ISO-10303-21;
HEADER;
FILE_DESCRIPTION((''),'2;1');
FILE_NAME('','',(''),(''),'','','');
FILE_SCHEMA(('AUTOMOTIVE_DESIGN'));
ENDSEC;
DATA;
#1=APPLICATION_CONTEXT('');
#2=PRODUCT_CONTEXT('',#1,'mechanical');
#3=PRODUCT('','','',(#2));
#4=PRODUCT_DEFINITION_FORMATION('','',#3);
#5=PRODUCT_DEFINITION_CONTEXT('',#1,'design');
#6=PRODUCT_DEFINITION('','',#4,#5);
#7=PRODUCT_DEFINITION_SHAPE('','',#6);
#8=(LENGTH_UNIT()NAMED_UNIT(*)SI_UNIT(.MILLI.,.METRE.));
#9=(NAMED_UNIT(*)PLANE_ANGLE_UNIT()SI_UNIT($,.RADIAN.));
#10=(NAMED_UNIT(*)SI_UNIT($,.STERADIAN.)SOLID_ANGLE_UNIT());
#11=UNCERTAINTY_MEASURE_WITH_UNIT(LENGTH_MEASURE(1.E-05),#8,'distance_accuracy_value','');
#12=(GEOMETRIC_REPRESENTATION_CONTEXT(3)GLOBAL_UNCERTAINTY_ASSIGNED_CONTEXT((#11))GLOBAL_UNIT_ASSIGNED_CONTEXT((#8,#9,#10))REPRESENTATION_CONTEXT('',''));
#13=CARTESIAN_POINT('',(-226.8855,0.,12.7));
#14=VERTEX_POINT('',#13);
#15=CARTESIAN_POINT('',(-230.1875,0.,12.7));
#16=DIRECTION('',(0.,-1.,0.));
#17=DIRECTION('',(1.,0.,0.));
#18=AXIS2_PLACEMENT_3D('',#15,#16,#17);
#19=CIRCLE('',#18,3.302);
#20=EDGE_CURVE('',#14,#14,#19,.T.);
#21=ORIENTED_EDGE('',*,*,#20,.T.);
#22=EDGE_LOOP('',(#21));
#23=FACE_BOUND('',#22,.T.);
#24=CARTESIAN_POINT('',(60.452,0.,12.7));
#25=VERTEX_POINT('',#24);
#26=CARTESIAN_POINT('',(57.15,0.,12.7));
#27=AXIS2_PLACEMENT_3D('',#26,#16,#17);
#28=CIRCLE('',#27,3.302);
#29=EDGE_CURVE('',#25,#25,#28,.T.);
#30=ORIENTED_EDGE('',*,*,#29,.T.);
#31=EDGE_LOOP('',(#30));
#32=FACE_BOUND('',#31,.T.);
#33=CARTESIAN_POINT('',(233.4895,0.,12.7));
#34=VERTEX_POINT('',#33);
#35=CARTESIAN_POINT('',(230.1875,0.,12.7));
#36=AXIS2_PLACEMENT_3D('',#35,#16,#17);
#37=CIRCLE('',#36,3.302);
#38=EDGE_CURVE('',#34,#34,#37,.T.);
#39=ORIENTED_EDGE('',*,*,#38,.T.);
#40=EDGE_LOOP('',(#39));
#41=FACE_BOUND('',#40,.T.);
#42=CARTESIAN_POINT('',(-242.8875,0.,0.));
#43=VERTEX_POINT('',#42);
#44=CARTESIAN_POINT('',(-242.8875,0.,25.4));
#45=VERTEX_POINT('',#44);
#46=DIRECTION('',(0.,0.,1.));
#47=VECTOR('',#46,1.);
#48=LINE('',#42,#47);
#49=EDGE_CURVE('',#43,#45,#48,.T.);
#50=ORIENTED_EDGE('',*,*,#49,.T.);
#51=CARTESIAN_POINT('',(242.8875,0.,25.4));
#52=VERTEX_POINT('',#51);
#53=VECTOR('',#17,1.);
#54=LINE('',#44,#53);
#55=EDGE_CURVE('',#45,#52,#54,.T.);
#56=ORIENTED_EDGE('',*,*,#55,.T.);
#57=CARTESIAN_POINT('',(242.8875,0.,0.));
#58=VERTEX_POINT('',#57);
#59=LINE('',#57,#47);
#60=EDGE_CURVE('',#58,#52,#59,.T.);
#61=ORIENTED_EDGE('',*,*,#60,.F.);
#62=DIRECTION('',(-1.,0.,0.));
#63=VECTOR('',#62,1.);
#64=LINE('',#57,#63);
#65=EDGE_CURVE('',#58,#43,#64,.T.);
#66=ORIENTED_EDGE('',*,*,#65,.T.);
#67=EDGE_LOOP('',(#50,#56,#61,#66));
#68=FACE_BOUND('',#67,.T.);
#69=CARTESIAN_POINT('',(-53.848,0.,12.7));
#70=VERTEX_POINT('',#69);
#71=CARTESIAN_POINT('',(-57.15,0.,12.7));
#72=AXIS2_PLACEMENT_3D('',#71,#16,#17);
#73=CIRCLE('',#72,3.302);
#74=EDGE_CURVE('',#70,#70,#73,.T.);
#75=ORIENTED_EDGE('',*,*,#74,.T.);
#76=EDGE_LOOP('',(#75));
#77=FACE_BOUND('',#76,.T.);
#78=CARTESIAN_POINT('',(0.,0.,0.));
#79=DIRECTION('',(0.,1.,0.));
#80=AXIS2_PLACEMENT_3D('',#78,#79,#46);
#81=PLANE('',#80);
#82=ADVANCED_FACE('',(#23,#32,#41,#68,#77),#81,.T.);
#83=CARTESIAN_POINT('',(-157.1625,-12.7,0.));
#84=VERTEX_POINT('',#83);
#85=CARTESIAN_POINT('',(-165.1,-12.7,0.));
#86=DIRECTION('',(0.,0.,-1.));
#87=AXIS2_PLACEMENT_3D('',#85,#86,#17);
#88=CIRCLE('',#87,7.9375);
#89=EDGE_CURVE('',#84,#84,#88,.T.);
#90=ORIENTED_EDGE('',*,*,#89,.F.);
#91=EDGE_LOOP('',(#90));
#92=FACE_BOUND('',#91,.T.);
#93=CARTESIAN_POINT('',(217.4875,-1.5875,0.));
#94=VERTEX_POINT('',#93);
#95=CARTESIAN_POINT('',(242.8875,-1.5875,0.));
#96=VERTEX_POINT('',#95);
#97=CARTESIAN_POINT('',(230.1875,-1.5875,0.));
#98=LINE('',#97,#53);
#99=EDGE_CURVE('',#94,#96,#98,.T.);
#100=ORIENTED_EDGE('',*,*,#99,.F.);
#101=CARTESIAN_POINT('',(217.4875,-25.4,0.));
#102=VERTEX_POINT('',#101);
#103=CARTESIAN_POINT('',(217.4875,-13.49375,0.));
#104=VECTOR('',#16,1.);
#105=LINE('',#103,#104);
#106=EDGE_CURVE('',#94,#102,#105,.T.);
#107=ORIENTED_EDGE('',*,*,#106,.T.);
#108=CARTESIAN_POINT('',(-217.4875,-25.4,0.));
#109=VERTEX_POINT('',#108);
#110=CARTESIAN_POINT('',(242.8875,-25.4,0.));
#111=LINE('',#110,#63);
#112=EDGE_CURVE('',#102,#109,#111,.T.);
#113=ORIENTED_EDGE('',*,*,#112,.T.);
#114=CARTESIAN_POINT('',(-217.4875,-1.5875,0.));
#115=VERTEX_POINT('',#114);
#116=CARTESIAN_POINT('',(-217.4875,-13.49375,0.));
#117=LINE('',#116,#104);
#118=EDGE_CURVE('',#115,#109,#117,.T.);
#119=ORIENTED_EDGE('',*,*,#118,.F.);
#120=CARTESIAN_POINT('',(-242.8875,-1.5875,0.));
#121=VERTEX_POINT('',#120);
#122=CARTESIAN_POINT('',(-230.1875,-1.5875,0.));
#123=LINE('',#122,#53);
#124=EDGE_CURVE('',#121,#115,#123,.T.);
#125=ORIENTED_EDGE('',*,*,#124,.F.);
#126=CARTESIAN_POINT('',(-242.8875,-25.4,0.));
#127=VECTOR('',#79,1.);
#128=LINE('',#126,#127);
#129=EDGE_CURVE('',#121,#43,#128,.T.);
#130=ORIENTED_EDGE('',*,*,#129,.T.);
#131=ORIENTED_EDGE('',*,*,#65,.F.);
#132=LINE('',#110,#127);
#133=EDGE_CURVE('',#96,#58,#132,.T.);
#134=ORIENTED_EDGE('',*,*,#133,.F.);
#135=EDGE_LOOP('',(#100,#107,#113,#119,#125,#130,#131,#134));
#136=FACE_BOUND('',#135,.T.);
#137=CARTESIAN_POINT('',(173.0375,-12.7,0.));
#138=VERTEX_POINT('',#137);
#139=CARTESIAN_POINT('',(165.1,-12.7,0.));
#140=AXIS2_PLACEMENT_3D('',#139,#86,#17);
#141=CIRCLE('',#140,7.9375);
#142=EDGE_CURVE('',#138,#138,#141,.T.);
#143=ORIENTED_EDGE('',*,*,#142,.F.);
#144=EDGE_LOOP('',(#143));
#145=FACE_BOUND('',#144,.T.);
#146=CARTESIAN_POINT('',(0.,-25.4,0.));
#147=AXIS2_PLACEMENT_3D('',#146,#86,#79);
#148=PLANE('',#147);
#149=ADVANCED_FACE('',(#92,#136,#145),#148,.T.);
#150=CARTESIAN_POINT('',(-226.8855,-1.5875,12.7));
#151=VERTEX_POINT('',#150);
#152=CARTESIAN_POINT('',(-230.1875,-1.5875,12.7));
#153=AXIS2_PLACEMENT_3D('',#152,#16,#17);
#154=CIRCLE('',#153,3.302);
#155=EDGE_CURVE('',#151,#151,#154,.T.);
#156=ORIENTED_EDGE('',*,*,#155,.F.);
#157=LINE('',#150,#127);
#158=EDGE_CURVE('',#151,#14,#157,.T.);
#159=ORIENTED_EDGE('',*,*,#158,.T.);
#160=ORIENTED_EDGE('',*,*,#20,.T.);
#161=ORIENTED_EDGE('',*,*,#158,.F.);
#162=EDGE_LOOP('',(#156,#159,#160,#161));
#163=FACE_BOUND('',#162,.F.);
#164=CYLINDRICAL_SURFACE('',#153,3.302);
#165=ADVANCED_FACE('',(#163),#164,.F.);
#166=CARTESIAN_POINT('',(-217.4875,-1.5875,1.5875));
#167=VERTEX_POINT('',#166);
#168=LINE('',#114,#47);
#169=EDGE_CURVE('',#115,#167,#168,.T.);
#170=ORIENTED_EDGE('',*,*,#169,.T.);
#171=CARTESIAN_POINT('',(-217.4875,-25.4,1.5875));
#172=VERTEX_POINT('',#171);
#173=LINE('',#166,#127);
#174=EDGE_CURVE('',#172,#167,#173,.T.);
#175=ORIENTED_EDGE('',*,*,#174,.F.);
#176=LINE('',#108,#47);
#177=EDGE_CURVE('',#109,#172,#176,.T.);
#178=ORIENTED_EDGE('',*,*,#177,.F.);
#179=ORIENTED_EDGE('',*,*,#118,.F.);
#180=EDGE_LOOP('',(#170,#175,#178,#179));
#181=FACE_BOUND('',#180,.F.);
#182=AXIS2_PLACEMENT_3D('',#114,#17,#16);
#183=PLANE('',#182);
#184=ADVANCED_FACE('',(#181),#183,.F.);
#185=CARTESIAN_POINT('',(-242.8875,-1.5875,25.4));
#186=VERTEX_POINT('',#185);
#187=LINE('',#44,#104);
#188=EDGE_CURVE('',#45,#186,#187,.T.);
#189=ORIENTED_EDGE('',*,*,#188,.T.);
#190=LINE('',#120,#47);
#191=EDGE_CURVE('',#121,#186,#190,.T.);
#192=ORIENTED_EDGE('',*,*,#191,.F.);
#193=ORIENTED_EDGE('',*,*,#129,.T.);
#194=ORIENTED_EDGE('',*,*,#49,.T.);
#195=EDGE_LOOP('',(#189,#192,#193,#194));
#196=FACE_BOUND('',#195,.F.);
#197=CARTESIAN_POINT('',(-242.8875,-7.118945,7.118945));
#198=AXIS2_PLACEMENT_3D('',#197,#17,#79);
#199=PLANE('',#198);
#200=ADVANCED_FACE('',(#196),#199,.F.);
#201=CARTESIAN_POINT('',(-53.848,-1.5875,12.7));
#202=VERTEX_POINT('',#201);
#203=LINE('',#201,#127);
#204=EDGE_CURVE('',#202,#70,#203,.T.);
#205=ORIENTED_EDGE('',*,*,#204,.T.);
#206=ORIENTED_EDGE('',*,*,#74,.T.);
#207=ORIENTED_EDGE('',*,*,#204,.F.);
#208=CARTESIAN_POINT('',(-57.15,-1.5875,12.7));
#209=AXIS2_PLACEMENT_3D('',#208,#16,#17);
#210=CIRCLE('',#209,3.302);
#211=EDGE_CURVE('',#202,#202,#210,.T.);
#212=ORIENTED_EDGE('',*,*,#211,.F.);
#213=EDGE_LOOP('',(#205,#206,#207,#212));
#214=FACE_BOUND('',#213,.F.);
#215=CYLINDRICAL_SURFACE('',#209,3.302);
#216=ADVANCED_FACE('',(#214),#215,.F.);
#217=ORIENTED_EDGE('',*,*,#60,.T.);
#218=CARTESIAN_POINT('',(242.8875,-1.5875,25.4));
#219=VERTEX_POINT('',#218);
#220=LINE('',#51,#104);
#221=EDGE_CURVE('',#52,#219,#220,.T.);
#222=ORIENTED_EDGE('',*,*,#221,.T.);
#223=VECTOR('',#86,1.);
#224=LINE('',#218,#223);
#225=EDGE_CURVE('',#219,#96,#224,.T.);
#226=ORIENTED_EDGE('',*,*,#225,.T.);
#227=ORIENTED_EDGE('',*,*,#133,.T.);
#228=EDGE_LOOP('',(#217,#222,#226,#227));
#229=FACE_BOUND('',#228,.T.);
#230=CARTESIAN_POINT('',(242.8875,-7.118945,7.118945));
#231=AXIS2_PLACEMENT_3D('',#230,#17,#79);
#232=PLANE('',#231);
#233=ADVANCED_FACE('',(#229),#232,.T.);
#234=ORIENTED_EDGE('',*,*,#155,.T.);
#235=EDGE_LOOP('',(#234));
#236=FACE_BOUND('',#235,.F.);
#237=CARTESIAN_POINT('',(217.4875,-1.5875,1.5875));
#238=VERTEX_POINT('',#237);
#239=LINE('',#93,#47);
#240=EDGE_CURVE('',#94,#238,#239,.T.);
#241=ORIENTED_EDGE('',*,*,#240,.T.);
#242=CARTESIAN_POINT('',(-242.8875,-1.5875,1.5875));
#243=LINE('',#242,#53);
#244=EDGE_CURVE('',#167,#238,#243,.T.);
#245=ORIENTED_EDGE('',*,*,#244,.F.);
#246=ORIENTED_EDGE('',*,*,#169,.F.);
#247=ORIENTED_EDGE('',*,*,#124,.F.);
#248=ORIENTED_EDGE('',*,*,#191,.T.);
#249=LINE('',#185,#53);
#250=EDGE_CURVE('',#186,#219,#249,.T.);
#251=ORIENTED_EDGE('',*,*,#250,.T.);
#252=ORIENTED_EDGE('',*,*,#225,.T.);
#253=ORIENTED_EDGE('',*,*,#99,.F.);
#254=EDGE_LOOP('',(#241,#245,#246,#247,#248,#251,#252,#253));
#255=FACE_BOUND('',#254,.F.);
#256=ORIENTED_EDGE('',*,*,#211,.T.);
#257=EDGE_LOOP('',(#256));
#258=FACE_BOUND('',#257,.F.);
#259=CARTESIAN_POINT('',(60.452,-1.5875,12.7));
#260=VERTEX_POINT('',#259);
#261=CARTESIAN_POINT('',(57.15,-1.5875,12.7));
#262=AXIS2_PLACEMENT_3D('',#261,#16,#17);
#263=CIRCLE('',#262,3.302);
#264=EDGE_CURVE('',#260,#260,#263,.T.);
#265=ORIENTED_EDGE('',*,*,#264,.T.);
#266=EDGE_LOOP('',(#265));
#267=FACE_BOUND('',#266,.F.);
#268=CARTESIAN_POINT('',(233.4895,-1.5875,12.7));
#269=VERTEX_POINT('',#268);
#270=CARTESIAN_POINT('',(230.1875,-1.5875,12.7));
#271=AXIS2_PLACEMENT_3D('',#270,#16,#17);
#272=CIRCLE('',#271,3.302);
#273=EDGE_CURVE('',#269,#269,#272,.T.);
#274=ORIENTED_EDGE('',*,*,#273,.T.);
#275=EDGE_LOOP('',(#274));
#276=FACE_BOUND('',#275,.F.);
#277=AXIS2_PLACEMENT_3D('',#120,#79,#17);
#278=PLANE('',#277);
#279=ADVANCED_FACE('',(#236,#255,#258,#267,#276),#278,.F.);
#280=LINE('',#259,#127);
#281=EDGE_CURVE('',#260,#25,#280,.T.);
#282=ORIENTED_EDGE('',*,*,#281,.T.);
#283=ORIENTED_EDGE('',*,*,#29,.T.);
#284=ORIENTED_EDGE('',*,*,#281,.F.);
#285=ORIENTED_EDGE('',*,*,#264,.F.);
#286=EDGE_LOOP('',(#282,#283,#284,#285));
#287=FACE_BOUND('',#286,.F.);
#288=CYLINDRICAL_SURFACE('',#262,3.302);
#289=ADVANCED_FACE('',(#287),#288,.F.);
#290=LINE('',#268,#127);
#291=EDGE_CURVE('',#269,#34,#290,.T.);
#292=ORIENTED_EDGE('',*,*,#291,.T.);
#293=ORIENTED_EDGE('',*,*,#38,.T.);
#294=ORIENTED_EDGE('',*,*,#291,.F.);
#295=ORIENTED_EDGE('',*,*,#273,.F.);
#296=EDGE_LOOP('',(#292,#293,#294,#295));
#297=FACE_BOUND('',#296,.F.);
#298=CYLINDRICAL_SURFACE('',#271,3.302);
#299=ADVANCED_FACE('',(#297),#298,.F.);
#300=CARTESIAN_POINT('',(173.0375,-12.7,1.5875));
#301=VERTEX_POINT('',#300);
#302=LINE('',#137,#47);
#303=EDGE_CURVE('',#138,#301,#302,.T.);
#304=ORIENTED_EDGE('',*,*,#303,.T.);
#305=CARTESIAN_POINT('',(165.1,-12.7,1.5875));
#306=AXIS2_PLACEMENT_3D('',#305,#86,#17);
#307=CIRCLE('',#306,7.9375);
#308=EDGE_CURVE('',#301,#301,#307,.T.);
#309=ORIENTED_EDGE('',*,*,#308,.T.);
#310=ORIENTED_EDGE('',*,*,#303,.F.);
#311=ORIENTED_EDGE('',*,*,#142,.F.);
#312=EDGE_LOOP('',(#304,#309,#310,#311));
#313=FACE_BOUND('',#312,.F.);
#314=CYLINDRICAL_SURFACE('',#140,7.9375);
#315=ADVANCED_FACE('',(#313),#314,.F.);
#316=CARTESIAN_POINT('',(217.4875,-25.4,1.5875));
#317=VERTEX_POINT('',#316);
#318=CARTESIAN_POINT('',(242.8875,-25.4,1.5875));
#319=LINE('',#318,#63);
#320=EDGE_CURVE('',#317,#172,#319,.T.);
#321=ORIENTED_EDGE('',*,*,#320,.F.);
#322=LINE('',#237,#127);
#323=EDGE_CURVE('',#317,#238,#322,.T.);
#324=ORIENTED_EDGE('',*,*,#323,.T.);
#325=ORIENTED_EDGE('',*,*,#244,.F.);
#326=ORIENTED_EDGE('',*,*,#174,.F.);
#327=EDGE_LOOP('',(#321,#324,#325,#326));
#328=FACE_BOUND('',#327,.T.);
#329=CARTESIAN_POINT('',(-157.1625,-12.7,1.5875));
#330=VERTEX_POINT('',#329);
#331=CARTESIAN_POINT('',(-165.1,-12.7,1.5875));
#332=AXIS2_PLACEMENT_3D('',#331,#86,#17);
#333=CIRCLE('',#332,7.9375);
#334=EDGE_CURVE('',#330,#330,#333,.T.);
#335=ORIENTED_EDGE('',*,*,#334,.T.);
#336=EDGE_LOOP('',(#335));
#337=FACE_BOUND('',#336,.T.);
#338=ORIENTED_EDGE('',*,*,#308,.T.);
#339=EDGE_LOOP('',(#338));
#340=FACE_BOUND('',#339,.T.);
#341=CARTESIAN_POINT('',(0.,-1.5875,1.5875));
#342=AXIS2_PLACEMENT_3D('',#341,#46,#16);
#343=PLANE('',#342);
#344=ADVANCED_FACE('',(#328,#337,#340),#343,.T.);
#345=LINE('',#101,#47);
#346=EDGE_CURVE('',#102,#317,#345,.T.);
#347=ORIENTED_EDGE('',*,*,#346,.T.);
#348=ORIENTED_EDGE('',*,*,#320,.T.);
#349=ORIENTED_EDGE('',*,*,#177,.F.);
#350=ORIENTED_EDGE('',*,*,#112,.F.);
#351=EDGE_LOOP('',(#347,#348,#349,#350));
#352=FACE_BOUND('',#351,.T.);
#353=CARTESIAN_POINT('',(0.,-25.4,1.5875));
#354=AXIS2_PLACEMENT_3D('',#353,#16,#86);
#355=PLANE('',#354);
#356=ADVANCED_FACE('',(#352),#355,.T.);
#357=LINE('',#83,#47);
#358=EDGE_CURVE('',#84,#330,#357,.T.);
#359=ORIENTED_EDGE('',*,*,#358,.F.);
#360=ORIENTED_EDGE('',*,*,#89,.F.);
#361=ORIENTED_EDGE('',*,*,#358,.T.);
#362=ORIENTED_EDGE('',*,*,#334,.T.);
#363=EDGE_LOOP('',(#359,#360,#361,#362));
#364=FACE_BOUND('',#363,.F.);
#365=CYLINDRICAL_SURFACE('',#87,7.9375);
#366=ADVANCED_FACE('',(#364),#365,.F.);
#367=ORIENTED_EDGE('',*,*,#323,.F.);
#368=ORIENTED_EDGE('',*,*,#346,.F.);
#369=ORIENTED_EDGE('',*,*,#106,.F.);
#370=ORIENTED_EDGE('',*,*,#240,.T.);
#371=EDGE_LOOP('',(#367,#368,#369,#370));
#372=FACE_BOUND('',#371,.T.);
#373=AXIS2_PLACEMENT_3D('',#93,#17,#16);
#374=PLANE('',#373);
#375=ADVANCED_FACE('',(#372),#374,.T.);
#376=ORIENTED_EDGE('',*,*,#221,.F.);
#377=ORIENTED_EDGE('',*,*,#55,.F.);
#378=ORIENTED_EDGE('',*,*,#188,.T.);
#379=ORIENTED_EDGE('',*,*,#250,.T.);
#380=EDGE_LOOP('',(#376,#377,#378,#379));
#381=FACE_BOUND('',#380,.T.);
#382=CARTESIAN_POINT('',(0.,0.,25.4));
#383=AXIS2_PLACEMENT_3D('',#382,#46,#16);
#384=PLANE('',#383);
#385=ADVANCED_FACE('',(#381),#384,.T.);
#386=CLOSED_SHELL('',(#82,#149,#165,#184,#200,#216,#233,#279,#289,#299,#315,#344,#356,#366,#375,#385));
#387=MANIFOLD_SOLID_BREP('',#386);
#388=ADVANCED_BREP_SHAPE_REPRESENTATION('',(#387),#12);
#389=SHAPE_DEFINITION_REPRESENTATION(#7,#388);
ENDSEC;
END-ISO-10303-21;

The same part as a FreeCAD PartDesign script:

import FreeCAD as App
import Part
import Sketcher

V = App.Vector
Q = App.Units.Quantity

doc = App.newDocument("Part")
params = doc.addObject("Spreadsheet::Sheet", "Params")
for row, (alias, value) in enumerate([
    ("sketch1_width", "1 in"),
    ("sketch1_width2", "0.0625 in"),
    ("pad1_length", "19.125 in"),
    ("sketch2_width", "1 in"),
    ("sketch2_diameter", "0.625 in"),
    ("sketch2_height", "0.9375 in"),
    ("pocket1_length", "1 in"),
    ("sketch3_diameter", "0.26 in"),
    ("pocket2_length", "1 in"),
], start=1):
    params.set(f"A{row}", alias)
    params.set(f"B{row}", "=" + value)
    params.setAlias(f"B{row}", alias)

body = doc.addObject("PartDesign::Body", "Body")

# Sketch on YZ plane
sketch1 = body.newObject("Sketcher::SketchObject", "Sketch")
sketch1.AttachmentSupport = (doc.getObject("YZ_Plane"), [""])
sketch1.MapMode = "FlatFace"
sketch1.addGeometry([
    Part.LineSegment(V(0, 0, 0), V(0, 25.4, 0)),  # 0
    Part.LineSegment(V(0, 25.4, 0), V(-1.5875, 25.4, 0)),  # 1
    Part.LineSegment(V(-1.5875, 25.4, 0), V(-1.5875, 1.5875, 0)),  # 2
    Part.LineSegment(V(-1.5875, 1.5875, 0), V(-25.4, 1.5875, 0)),  # 3
    Part.LineSegment(V(-25.4, 1.5875, 0), V(-25.4, 0, 0)),  # 4
    Part.LineSegment(V(-25.4, 0, 0), V(0, 0, 0)),  # 5
], False)
sketch1.addConstraint([
    Sketcher.Constraint("Coincident", 0, 2, 1, 1),
    Sketcher.Constraint("Coincident", 1, 2, 2, 1),
    Sketcher.Constraint("Coincident", 2, 2, 3, 1),
    Sketcher.Constraint("Coincident", 3, 2, 4, 1),
    Sketcher.Constraint("Coincident", 4, 2, 5, 1),
    Sketcher.Constraint("Coincident", 5, 2, 0, 1),
    Sketcher.Constraint("Vertical", 0),
    Sketcher.Constraint("Horizontal", 1),
    Sketcher.Constraint("Vertical", 2),
    Sketcher.Constraint("Horizontal", 3),
    Sketcher.Constraint("Vertical", 4),
    Sketcher.Constraint("Horizontal", 5),
    Sketcher.Constraint("Coincident", 5, 2, -1, 1),
    Sketcher.Constraint("Equal", 5, 0),
    Sketcher.Constraint("Equal", 3, 2),
    Sketcher.Constraint("DistanceX", 5, 1, 5, 2, Q("1 in")),
    Sketcher.Constraint("DistanceX", 1, 2, 1, 1, Q("0.0625 in")),
])
sketch1.setExpression("Constraints[15]", "Params.sketch1_width")
sketch1.setExpression("Constraints[16]", "Params.sketch1_width2")
pad1 = body.newObject("PartDesign::Pad", "Pad")
pad1.Profile = sketch1
pad1.setExpression("Length", "Params.pad1_length")
pad1.Midplane = True

# Sketch on XY plane
sketch2 = body.newObject("Sketcher::SketchObject", "Sketch001")
sketch2.AttachmentSupport = (doc.getObject("XY_Plane"), [""])
sketch2.MapMode = "FlatFace"
sketch2.addGeometry([
    Part.Circle(V(-165.1, -12.7, 0), V(0, 0, 1), 7.9375),  # 0
    Part.Circle(V(165.1, -12.7, 0), V(0, 0, 1), 7.9375),  # 1
    Part.LineSegment(V(-242.8875, -25.4, 0), V(-242.8875, -1.5875, 0)),  # 2
    Part.LineSegment(V(-242.8875, -1.5875, 0), V(-217.4875, -1.5875, 0)),  # 3
    Part.LineSegment(V(-217.4875, -1.5875, 0), V(-217.4875, -25.4, 0)),  # 4
    Part.LineSegment(V(-217.4875, -25.4, 0), V(-242.8875, -25.4, 0)),  # 5
    Part.LineSegment(V(217.4875, -25.4, 0), V(217.4875, -1.5875, 0)),  # 6
    Part.LineSegment(V(217.4875, -1.5875, 0), V(242.8875, -1.5875, 0)),  # 7
    Part.LineSegment(V(242.8875, -1.5875, 0), V(242.8875, -25.4, 0)),  # 8
    Part.LineSegment(V(242.8875, -25.4, 0), V(217.4875, -25.4, 0)),  # 9
], False)
sketch2.addConstraint([
    Sketcher.Constraint("Coincident", 2, 2, 3, 1),
    Sketcher.Constraint("Coincident", 3, 2, 4, 1),
    Sketcher.Constraint("Coincident", 4, 2, 5, 1),
    Sketcher.Constraint("Coincident", 5, 2, 2, 1),
    Sketcher.Constraint("Coincident", 6, 2, 7, 1),
    Sketcher.Constraint("Coincident", 7, 2, 8, 1),
    Sketcher.Constraint("Coincident", 8, 2, 9, 1),
    Sketcher.Constraint("Coincident", 9, 2, 6, 1),
    Sketcher.Constraint("Vertical", 2),
    Sketcher.Constraint("Horizontal", 3),
    Sketcher.Constraint("Vertical", 4),
    Sketcher.Constraint("Horizontal", 5),
    Sketcher.Constraint("Vertical", 6),
    Sketcher.Constraint("Horizontal", 7),
    Sketcher.Constraint("Vertical", 8),
    Sketcher.Constraint("Horizontal", 9),
    Sketcher.Constraint("Equal", 0, 1),
    Sketcher.Constraint("Symmetric", 0, 3, 1, 3, -2),
    Sketcher.Constraint("Symmetric", 3, 2, 6, 2, -2),
    Sketcher.Constraint("Symmetric", 5, 2, 8, 2, -2),
    Sketcher.Constraint("DistanceX", 3, 1, 3, 2, Q("1 in")),
    Sketcher.Constraint("Diameter", 0, Q("0.625 in")),
    Sketcher.Constraint("DistanceY", 4, 2, -1, 1, Q("1 in")),
    Sketcher.Constraint("DistanceX", 0, 3, 1, 3, Q("13 in")),
    Sketcher.Constraint("DistanceY", 0, 3, -1, 1, Q("0.5 in")),
    Sketcher.Constraint("DistanceY", 2, 1, 2, 2, Q("0.9375 in")),
    Sketcher.Constraint("DistanceX", 2, 2, -1, 1, Q("9.5625 in")),
])
sketch2.setExpression("Constraints[20]", "Params.sketch2_width")
sketch2.setExpression("Constraints[21]", "Params.sketch2_diameter")
sketch2.setExpression("Constraints[25]", "Params.sketch2_height")
pocket1 = body.newObject("PartDesign::Pocket", "Pocket")
pocket1.Profile = sketch2
pocket1.setExpression("Length", "Params.pocket1_length")
pocket1.Reversed = True

# Sketch on XZ plane
sketch3 = body.newObject("Sketcher::SketchObject", "Sketch002")
sketch3.AttachmentSupport = (doc.getObject("XZ_Plane"), [""])
sketch3.MapMode = "FlatFace"
sketch3.AttachmentOffset = App.Placement(V(0, 0, 0.0625 * 25.4), App.Rotation())
sketch3.addGeometry([
    Part.Circle(V(-230.1875, 12.7, 0), V(0, 0, 1), 3.302),
    Part.Circle(V(230.1875, 12.7, 0), V(0, 0, 1), 3.302),
    Part.Circle(V(-57.15, 12.7, 0), V(0, 0, 1), 3.302),
    Part.Circle(V(57.15, 12.7, 0), V(0, 0, 1), 3.302),
], False)
sketch3.addConstraint([
    Sketcher.Constraint("Equal", 0, 1),
    Sketcher.Constraint("Equal", 1, 2),
    Sketcher.Constraint("Equal", 2, 3),
    Sketcher.Constraint("Symmetric", 0, 3, 1, 3, -2),
    Sketcher.Constraint("Symmetric", 2, 3, 3, 3, -2),
    Sketcher.Constraint("Horizontal", 1, 3, 2, 3),
    Sketcher.Constraint("Diameter", 0, Q("0.26 in")),
    Sketcher.Constraint("DistanceY", -1, 1, 0, 3, Q("0.5 in")),
    Sketcher.Constraint("DistanceX", 2, 3, 3, 3, Q("4.5 in")),
    Sketcher.Constraint("DistanceX", 0, 3, -1, 1, Q("9.0625 in")),
])
sketch3.setExpression("Constraints[6]", "Params.sketch3_diameter")
pocket2 = body.newObject("PartDesign::Pocket", "Pocket001")
pocket2.Profile = sketch3
pocket2.setExpression("Length", "Params.pocket2_length")

doc.recompute()
